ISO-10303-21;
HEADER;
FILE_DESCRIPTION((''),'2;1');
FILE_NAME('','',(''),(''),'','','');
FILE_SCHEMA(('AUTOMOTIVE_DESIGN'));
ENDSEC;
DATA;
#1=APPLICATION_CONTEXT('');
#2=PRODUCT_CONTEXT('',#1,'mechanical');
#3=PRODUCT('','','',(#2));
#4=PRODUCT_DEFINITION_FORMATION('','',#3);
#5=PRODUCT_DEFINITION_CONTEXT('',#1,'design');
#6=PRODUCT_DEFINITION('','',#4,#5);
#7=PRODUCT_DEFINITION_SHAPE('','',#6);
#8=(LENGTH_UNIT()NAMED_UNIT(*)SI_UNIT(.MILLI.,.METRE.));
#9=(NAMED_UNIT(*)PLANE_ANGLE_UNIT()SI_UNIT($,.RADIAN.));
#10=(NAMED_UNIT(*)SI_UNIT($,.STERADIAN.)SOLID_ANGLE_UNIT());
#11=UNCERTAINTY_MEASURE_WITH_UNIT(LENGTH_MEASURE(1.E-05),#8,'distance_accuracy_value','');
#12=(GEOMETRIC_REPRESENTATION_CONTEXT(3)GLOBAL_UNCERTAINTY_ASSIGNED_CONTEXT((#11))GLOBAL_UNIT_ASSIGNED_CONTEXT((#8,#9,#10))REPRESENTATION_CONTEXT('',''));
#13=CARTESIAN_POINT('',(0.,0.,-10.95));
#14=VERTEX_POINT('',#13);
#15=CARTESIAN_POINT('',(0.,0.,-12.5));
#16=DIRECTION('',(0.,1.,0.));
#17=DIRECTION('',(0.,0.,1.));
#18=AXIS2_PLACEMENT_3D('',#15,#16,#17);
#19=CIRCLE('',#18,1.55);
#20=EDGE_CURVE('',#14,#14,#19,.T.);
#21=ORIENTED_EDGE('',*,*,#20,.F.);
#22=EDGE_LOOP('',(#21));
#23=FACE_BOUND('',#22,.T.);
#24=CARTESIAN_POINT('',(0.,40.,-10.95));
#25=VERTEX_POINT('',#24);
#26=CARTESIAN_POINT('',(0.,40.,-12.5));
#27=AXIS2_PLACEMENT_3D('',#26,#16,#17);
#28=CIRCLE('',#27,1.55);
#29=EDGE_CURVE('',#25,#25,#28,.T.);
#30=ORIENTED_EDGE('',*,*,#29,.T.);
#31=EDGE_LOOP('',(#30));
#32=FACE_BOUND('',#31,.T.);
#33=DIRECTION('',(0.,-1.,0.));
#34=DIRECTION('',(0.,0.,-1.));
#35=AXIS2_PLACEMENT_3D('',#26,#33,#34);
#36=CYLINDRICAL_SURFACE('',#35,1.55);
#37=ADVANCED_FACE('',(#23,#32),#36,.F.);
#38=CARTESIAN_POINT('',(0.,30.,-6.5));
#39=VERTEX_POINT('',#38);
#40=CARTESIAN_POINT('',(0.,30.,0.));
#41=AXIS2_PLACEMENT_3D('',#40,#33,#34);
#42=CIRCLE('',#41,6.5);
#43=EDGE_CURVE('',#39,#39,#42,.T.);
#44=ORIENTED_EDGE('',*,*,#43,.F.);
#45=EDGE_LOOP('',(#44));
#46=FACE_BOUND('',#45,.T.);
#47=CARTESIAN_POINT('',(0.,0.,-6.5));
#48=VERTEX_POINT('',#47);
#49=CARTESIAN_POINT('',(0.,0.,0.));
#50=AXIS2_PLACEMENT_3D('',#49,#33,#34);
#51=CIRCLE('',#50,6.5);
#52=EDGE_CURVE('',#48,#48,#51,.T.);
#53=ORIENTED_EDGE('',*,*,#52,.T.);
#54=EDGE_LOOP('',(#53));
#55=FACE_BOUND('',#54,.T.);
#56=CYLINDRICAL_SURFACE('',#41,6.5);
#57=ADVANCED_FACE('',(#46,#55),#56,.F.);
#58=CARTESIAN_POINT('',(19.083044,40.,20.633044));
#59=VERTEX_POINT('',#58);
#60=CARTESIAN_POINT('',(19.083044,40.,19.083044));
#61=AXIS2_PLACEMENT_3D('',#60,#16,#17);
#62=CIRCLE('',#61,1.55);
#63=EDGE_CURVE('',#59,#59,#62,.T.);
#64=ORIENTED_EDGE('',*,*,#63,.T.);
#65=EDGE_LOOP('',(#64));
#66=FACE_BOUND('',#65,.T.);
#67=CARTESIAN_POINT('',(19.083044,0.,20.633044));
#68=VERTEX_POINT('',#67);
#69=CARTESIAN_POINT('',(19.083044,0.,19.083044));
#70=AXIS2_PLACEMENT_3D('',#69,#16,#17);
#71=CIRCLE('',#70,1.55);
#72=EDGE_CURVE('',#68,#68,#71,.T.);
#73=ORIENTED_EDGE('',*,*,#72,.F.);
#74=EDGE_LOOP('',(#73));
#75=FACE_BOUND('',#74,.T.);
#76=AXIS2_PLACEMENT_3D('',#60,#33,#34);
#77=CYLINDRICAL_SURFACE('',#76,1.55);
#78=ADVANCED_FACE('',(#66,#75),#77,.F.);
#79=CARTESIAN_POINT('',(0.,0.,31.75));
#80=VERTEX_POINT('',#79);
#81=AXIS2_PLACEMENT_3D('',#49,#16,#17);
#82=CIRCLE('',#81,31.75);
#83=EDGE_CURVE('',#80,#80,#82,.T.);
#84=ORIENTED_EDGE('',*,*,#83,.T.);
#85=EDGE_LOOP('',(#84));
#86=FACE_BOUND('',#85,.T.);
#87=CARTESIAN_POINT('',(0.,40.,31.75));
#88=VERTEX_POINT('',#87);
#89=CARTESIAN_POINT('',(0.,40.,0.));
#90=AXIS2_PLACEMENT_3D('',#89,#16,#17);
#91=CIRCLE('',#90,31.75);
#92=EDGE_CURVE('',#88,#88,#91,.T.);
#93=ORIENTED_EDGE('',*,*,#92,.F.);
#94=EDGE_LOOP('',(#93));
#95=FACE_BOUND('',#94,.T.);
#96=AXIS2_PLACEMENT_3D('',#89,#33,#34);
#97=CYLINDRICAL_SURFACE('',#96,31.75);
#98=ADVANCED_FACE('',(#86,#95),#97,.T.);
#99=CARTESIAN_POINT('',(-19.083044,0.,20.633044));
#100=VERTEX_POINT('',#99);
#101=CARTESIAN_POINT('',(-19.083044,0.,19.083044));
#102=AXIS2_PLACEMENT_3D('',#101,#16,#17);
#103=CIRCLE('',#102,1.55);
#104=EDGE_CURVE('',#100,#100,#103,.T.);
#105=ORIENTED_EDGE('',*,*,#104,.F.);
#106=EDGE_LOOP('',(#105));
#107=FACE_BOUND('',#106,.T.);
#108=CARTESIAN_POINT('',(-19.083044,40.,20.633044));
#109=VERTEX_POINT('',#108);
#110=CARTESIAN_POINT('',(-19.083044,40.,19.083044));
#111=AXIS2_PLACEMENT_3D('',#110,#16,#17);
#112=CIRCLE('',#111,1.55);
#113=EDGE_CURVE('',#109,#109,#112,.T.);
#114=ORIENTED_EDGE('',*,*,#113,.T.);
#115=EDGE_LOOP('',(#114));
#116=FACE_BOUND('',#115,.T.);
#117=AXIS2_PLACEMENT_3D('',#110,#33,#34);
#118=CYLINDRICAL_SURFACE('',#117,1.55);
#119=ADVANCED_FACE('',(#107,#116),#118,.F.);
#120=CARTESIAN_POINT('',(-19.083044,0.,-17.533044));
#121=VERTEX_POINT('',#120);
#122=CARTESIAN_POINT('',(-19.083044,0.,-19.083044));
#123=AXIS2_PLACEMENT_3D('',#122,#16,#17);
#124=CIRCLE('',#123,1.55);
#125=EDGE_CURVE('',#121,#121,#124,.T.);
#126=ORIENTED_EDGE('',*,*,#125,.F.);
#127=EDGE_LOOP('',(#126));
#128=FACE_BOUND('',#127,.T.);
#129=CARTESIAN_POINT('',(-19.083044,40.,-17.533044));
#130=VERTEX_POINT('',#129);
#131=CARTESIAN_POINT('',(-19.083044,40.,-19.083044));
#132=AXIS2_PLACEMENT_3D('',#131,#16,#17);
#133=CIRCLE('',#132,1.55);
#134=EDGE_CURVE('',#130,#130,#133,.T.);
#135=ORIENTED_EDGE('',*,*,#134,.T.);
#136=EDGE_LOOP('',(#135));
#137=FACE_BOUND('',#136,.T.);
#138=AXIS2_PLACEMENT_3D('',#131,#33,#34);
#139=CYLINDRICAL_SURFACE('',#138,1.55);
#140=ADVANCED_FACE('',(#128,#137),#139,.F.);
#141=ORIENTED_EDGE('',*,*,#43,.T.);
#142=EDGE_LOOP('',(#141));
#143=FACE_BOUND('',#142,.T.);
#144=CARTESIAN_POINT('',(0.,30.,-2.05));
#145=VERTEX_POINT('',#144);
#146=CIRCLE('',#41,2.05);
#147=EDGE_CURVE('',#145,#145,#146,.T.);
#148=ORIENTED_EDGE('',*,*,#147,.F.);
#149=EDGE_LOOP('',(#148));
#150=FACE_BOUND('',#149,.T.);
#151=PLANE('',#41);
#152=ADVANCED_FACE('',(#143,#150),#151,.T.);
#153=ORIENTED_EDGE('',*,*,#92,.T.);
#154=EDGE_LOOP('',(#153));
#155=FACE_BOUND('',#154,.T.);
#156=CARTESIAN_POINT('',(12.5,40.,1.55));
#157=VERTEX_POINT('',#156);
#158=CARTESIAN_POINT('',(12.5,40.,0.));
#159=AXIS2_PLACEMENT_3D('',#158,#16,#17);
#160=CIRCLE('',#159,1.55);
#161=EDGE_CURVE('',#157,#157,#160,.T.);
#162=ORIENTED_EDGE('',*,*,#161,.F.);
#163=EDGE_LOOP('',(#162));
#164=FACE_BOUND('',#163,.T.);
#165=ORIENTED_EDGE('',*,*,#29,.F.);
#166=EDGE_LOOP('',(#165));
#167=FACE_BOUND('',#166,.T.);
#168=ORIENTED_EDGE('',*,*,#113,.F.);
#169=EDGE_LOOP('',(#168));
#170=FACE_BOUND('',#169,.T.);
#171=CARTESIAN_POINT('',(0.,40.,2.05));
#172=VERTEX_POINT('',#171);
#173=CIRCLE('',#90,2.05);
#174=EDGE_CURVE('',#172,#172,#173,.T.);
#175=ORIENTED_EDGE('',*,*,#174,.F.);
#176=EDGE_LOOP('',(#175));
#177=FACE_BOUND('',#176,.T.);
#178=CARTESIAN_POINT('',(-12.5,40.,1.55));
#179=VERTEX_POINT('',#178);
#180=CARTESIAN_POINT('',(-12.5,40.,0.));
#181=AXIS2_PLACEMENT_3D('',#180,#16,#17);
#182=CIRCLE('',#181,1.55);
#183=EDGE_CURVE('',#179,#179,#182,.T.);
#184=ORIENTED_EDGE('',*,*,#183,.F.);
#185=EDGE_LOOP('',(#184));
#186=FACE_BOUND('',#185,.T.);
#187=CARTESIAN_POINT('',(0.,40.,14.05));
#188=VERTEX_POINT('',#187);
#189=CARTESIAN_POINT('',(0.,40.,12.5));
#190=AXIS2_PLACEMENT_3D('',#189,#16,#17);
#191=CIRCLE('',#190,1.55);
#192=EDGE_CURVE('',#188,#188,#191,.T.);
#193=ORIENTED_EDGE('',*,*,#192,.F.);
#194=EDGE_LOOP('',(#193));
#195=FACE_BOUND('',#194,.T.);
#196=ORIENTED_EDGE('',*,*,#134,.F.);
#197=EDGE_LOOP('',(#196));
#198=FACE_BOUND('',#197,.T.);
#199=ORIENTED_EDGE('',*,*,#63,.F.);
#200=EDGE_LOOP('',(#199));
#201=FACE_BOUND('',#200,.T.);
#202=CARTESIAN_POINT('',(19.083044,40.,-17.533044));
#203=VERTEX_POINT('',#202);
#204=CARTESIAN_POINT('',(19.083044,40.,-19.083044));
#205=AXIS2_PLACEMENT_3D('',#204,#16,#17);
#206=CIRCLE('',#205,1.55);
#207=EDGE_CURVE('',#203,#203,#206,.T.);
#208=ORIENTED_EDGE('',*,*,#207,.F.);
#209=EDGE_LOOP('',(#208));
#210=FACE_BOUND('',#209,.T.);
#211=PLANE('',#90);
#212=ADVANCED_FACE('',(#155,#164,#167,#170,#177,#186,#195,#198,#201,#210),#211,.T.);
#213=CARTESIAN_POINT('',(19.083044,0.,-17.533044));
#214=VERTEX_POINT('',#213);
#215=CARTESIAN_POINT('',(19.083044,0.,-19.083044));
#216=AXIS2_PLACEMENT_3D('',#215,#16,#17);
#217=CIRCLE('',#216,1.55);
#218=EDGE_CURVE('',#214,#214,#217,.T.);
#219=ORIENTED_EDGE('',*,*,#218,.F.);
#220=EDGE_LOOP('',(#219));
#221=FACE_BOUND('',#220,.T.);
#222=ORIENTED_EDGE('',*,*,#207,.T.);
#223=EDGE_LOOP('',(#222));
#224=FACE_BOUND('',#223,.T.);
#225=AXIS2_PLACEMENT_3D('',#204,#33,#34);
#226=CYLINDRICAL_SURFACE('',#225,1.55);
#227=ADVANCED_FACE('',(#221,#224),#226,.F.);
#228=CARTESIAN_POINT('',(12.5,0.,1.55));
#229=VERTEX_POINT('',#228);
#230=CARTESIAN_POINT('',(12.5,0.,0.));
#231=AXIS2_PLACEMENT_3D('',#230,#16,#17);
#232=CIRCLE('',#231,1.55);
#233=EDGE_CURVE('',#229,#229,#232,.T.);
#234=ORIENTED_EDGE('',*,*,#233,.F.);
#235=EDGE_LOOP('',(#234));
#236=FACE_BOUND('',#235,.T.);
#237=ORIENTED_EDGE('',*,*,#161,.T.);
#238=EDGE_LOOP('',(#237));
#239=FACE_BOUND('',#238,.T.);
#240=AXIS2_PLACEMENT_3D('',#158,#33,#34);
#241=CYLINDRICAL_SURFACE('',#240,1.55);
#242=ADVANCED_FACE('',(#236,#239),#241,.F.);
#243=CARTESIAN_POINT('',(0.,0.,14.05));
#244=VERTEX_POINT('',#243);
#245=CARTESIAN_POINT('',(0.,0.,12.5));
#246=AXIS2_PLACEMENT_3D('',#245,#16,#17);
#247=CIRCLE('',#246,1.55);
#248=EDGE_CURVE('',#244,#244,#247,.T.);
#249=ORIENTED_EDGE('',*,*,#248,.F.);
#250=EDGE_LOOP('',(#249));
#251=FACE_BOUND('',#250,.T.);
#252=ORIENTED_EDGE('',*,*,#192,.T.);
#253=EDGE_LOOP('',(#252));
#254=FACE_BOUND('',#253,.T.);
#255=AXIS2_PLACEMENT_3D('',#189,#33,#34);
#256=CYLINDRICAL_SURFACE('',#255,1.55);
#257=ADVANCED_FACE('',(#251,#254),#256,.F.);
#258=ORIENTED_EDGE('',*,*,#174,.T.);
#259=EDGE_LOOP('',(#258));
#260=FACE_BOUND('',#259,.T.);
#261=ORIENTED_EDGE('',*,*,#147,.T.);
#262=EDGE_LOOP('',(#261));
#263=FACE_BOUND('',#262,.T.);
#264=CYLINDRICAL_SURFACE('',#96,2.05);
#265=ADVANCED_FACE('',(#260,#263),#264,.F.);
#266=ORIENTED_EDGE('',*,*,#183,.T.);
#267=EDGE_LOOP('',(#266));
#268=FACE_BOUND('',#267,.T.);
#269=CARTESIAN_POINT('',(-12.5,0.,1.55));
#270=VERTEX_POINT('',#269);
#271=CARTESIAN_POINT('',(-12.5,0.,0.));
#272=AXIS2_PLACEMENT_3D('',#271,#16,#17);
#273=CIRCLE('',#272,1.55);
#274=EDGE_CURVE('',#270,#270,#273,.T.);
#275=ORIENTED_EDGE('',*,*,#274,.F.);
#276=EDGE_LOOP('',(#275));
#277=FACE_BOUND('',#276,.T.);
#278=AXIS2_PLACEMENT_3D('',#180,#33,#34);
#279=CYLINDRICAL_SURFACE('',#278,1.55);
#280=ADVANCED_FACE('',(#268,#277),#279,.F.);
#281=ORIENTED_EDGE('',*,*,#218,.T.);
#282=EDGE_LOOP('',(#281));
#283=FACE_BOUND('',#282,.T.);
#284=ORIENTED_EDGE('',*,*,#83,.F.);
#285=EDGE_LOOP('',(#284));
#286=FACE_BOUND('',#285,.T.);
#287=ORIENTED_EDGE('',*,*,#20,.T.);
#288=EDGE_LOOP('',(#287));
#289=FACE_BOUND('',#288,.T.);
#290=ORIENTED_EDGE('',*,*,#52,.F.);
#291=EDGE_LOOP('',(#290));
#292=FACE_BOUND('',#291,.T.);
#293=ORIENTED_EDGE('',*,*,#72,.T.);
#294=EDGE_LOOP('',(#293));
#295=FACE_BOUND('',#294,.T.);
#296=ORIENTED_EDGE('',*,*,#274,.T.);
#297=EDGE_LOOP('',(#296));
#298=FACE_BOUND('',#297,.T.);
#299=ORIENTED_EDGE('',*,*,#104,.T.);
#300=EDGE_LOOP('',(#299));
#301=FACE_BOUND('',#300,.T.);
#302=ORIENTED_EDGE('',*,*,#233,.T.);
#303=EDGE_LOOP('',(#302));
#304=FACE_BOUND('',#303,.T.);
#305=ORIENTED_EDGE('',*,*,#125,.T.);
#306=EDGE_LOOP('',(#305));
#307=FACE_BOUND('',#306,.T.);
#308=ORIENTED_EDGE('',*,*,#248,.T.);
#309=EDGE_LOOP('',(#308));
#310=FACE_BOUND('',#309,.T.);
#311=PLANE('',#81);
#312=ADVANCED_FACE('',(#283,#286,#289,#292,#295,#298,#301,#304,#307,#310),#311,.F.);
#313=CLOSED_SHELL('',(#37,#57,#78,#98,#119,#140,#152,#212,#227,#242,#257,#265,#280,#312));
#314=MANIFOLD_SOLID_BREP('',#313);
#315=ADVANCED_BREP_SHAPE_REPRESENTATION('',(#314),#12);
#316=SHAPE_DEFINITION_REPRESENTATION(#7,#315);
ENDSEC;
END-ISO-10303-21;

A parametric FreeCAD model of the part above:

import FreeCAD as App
import Part
import Sketcher
Q = App.Units.Quantity

doc = App.newDocument("Part")
body = doc.addObject("PartDesign::Body", "Body")

sketch1 = body.newObject("Sketcher::SketchObject", "Sketch")
sketch1.AttachmentSupport = (doc.getObject("XZ_Plane"), [""])
sketch1.MapMode = "FlatFace"
sketch1.addGeometry([
    Part.Circle(App.Vector(0, 0, 0), App.Vector(0, 0, 1), 31.8),
    Part.Circle(App.Vector(-19.1, -19.1, 0), App.Vector(0, 0, 1), 1.6),
    Part.Circle(App.Vector(0, -12.5, 0), App.Vector(0, 0, 1), 1.6),
    Part.Circle(App.Vector(-12.5, 0, 0), App.Vector(0, 0, 1), 1.6),
    Part.Circle(App.Vector(-19.1, 19.1, 0), App.Vector(0, 0, 1), 1.6),
    Part.Circle(App.Vector(19.1, -19.1, 0), App.Vector(0, 0, 1), 1.6),
    Part.Circle(App.Vector(12.5, 0, 0), App.Vector(0, 0, 1), 1.6),
    Part.Circle(App.Vector(0, 0, 0), App.Vector(0, 0, 1), 2),
    Part.Circle(App.Vector(0, 12.5, 0), App.Vector(0, 0, 1), 1.6),
    Part.Circle(App.Vector(19.1, 19.1, 0), App.Vector(0, 0, 1), 1.6),
], False)
sketch1.addConstraint([
    Sketcher.Constraint("Coincident", 0, 3, -1, 1),
    Sketcher.Constraint("Coincident", 7, 3, -1, 1),
    Sketcher.Constraint("Equal", 1, 2),
    Sketcher.Constraint("Equal", 2, 3),
    Sketcher.Constraint("Equal", 3, 4),
    Sketcher.Constraint("Equal", 4, 5),
    Sketcher.Constraint("Equal", 5, 6),
    Sketcher.Constraint("Equal", 6, 8),
    Sketcher.Constraint("Equal", 8, 9),
    Sketcher.Constraint("Symmetric", 4, 3, 5, 3, -1, 1),
    Sketcher.Constraint("Symmetric", 3, 3, 6, 3, -1, 1),
    Sketcher.Constraint("Symmetric", 2, 3, 8, 3, -1, 1),
    Sketcher.Constraint("Symmetric", 1, 3, 9, 3, -1, 1),
    Sketcher.Constraint("Symmetric", 1, 3, 5, 3, -2),
    Sketcher.Constraint("PointOnObject", 2, 3, -2),
    Sketcher.Constraint("PointOnObject", 3, 3, -1),
    Sketcher.Constraint("Diameter", 0, Q("63.5 mm")),
    Sketcher.Constraint("Diameter", 1, Q("3.1 mm")),
    Sketcher.Constraint("Diameter", 7, Q("4.1 mm")),
    Sketcher.Constraint("DistanceX", 3, 3, 6, 3, Q("25 mm")),
    Sketcher.Constraint("DistanceY", 2, 3, -1, 1, Q("12.5 mm")),
    Sketcher.Constraint("DistanceY", 1, 3, 4, 3, Q("38.166089 mm")),
    Sketcher.Constraint("DistanceX", 1, 3, 5, 3, Q("38.166089 mm")),
])
pad1 = body.newObject("PartDesign::Pad", "Pad")
pad1.Profile = sketch1
pad1.Length = 40
pad1.Reversed = True

sketch2 = body.newObject("Sketcher::SketchObject", "Sketch001")
sketch2.AttachmentSupport = (doc.getObject("XZ_Plane"), [""])
sketch2.MapMode = "FlatFace"
sketch2.addGeometry(Part.Circle(App.Vector(0, 0, 0), App.Vector(0, 0, 1), 6), False)
sketch2.addConstraint([
    Sketcher.Constraint("Coincident", 0, 3, -1, 1),
    Sketcher.Constraint("Diameter", 0, Q("13 mm")),
])
pocket1 = body.newObject("PartDesign::Pocket", "Pocket")
pocket1.Profile = sketch2
pocket1.Length = 30

doc.recompute()
